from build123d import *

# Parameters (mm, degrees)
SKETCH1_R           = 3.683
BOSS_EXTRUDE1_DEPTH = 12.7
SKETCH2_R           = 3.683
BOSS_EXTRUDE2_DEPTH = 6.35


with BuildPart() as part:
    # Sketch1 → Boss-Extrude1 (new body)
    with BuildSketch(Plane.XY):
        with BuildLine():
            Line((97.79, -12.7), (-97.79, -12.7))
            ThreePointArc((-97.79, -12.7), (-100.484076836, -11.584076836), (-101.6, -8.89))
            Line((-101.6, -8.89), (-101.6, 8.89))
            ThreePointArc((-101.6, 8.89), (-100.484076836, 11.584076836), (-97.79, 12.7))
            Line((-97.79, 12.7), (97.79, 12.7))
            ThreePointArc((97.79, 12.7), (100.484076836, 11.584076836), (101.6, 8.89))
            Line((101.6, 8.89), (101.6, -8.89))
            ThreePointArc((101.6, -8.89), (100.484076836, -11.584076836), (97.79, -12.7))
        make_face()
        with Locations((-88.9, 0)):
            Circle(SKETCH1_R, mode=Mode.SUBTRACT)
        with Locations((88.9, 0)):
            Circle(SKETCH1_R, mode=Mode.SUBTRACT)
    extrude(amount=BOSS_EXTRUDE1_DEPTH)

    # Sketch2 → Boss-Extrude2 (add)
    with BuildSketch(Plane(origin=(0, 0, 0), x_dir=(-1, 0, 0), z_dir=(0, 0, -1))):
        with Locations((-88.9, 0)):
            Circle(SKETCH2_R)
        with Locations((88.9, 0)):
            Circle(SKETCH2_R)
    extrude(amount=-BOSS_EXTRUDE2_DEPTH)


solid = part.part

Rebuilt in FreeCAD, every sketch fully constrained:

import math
import FreeCAD as App
import Part
import Sketcher
from FreeCAD import Vector
Q = App.Units.Quantity

doc = App.newDocument("Part")
params = doc.addObject("Spreadsheet::Sheet", "Params")
for row, (alias, value) in enumerate([
    ("sketch1_diameter", "0.29 in"),
    ("sketch1_radius", "0.15 in"),
    ("sketch1_width", "7.7 in"),
    ("sketch1_height", "0.7 in"),
    ("pad1_length", "0.5 in"),
    ("sketch2_diameter", "0.29 in"),
    ("pad2_length", "0.25 in"),
], start=1):
    params.set(f"A{row}", alias)
    params.set(f"B{row}", "=" + value)
    params.setAlias(f"B{row}", alias)

body = doc.addObject("PartDesign::Body", "Body")

sketch1 = doc.addObject("Sketcher::SketchObject", "Sketch")
body.addObject(sketch1)
sketch1.AttachmentSupport = (doc.XY_Plane, [""])
sketch1.MapMode = "FlatFace"
sketch1.addGeometry(Part.LineSegment(Vector(-97.8, -12.7, 0), Vector(97.8, -12.7, 0)), False)
sketch1.addGeometry(Part.ArcOfCircle(Part.Circle(Vector(97.8, -8.9, 0), Vector(0, 0, 1), 3.8), math.radians(-90), math.radians(0)), False)
sketch1.addGeometry(Part.LineSegment(Vector(101.6, -8.9, 0), Vector(101.6, 8.9, 0)), False)
sketch1.addGeometry(Part.ArcOfCircle(Part.Circle(Vector(97.8, 8.9, 0), Vector(0, 0, 1), 3.8), math.radians(0), math.radians(90)), False)
sketch1.addGeometry(Part.LineSegment(Vector(97.8, 12.7, 0), Vector(-97.8, 12.7, 0)), False)
sketch1.addGeometry(Part.ArcOfCircle(Part.Circle(Vector(-97.8, 8.9, 0), Vector(0, 0, 1), 3.8), math.radians(90), math.radians(180)), False)
sketch1.addGeometry(Part.LineSegment(Vector(-101.6, 8.9, 0), Vector(-101.6, -8.9, 0)), False)
sketch1.addGeometry(Part.ArcOfCircle(Part.Circle(Vector(-97.8, -8.9, 0), Vector(0, 0, 1), 3.8), math.radians(-180), math.radians(-90)), False)
sketch1.addGeometry(Part.Circle(Vector(88.9, 0, 0), Vector(0, 0, 1), 3.7), False)
sketch1.addGeometry(Part.Circle(Vector(-88.9, 0, 0), Vector(0, 0, 1), 3.7), False)
sketch1.addConstraint(Sketcher.Constraint("Tangent", 0, 2, 1, 1))
sketch1.addConstraint(Sketcher.Constraint("Tangent", 1, 2, 2, 1))
sketch1.addConstraint(Sketcher.Constraint("Tangent", 2, 2, 3, 1))
sketch1.addConstraint(Sketcher.Constraint("Tangent", 3, 2, 4, 1))
sketch1.addConstraint(Sketcher.Constraint("Tangent", 4, 2, 5, 1))
sketch1.addConstraint(Sketcher.Constraint("Tangent", 5, 2, 6, 1))
sketch1.addConstraint(Sketcher.Constraint("Tangent", 6, 2, 7, 1))
sketch1.addConstraint(Sketcher.Constraint("Tangent", 7, 2, 0, 1))
sketch1.addConstraint(Sketcher.Constraint("Horizontal", 0))
sketch1.addConstraint(Sketcher.Constraint("Vertical", 2))
sketch1.addConstraint(Sketcher.Constraint("Horizontal", 4))
sketch1.addConstraint(Sketcher.Constraint("Vertical", 6))
sketch1.addConstraint(Sketcher.Constraint("Equal", 1, 3))
sketch1.addConstraint(Sketcher.Constraint("Equal", 3, 5))
sketch1.addConstraint(Sketcher.Constraint("Equal", 5, 7))
sketch1.addConstraint(Sketcher.Constraint("Equal", 8, 9))
sketch1.addConstraint(Sketcher.Constraint("Symmetric", 1, 3, 5, 3, -1, 1))
sketch1.addConstraint(Sketcher.Constraint("Symmetric", 8, 3, 9, 3, -1, 1))
sketch1.addConstraint(Sketcher.Constraint("PointOnObject", 8, 3, -1))
sketch1.addConstraint(Sketcher.Constraint("Diameter", 8, Q("0.29 in")))
sketch1.addConstraint(Sketcher.Constraint("Radius", 1, Q("0.15 in")))
sketch1.addConstraint(Sketcher.Constraint("DistanceX", 0, 1, 0, 2, Q("7.7 in")))
sketch1.addConstraint(Sketcher.Constraint("DistanceY", 2, 1, 2, 2, Q("0.7 in")))
sketch1.addConstraint(Sketcher.Constraint("DistanceX", 9, 3, 8, 3, Q("7 in")))
sketch1.setExpression("Constraints[19]", "Params.sketch1_diameter")
sketch1.setExpression("Constraints[20]", "Params.sketch1_radius")
sketch1.setExpression("Constraints[21]", "Params.sketch1_width")
sketch1.setExpression("Constraints[22]", "Params.sketch1_height")
pad1 = doc.addObject("PartDesign::Pad", "Pad")
body.addObject(pad1)
pad1.Profile = sketch1
pad1.setExpression("Length", "Params.pad1_length")

sketch2 = doc.addObject("Sketcher::SketchObject", "Sketch001")
body.addObject(sketch2)
sketch2.AttachmentSupport = (doc.XY_Plane, [""])
sketch2.MapMode = "FlatFace"
sketch2.addGeometry(Part.Circle(Vector(88.9, 0, 0), Vector(0, 0, 1), 3.7), False)
sketch2.addGeometry(Part.Circle(Vector(-88.9, 0, 0), Vector(0, 0, 1), 3.7), False)
sketch2.addConstraint(Sketcher.Constraint("Equal", 0, 1))
sketch2.addConstraint(Sketcher.Constraint("Symmetric", 0, 3, 1, 3, -1, 1))
sketch2.addConstraint(Sketcher.Constraint("PointOnObject", 0, 3, -1))
sketch2.addConstraint(Sketcher.Constraint("Diameter", 0, Q("0.29 in")))
sketch2.addConstraint(Sketcher.Constraint("DistanceX", 1, 3, 0, 3, Q("7 in")))
sketch2.setExpression("Constraints[3]", "Params.sketch2_diameter")
pad2 = doc.addObject("PartDesign::Pad", "Pad001")
body.addObject(pad2)
pad2.Profile = sketch2
pad2.setExpression("Length", "Params.pad2_length")

doc.recompute()
